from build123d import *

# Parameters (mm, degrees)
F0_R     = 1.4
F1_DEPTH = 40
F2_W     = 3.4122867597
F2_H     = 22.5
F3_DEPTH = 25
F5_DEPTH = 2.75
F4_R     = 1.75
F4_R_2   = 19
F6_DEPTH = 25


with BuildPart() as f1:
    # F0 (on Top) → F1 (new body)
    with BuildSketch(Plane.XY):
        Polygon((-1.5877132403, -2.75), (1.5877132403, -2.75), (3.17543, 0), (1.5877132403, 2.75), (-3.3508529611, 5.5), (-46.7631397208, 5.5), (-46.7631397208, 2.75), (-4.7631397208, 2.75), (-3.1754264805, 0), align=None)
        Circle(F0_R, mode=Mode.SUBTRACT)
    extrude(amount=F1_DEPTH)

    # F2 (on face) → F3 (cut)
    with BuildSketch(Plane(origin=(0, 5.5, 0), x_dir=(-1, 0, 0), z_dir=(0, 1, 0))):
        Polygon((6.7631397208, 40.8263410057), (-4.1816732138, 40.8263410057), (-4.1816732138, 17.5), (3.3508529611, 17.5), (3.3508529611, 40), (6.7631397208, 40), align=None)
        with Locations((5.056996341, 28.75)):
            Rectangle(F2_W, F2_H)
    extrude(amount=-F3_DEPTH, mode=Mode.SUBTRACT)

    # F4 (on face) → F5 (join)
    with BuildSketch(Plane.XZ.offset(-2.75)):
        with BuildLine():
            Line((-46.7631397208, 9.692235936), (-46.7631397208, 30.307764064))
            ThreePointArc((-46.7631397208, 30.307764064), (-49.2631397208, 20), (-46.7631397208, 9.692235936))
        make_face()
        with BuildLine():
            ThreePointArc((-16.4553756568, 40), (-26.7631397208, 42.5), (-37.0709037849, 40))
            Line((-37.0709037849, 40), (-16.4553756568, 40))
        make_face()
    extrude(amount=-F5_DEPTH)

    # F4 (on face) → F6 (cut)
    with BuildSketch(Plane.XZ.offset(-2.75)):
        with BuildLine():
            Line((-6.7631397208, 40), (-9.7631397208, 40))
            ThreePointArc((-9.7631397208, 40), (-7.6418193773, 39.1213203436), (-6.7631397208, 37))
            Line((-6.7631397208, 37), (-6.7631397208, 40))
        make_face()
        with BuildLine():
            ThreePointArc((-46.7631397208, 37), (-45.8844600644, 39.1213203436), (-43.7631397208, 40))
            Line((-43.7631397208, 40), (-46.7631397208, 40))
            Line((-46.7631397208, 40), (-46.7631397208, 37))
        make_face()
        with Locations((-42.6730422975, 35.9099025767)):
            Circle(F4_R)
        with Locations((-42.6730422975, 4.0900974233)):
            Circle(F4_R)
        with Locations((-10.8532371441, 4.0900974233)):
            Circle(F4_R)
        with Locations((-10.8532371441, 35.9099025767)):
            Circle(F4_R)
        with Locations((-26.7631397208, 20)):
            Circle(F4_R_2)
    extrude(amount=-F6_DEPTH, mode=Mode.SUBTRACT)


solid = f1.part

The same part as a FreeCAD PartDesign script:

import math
import FreeCAD as App
import Part
import Sketcher
Q = App.Units.Quantity

doc = App.newDocument("Part")
body = doc.addObject("PartDesign::Body", "Body")

sketch1 = body.newObject("Sketcher::SketchObject", "Sketch")
sketch1.AttachmentSupport = (doc.getObject("XY_Plane"), [""])
sketch1.MapMode = "FlatFace"
sketch1.addGeometry([
    Part.LineSegment(App.Vector(-1.6, -2.8, 0), App.Vector(1.6, -2.8, 0)),
    Part.LineSegment(App.Vector(1.6, -2.8, 0), App.Vector(3.2, 0, 0)),
    Part.LineSegment(App.Vector(3.2, 0, 0), App.Vector(1.6, 2.8, 0)),
    Part.LineSegment(App.Vector(1.6, 2.8, 0), App.Vector(-3.4, 5.5, 0)),
    Part.LineSegment(App.Vector(-3.4, 5.5, 0), App.Vector(-46.8, 5.5, 0)),
    Part.LineSegment(App.Vector(-46.8, 5.5, 0), App.Vector(-46.8, 2.8, 0)),
    Part.LineSegment(App.Vector(-46.8, 2.8, 0), App.Vector(-4.8, 2.8, 0)),
    Part.LineSegment(App.Vector(-4.8, 2.8, 0), App.Vector(-3.2, 0, 0)),
    Part.LineSegment(App.Vector(-3.2, 0, 0), App.Vector(-1.6, -2.8, 0)),
    Part.Circle(App.Vector(0, 0, 0), App.Vector(0, 0, 1), 1.4),
], False)
sketch1.addConstraint([
    Sketcher.Constraint("Coincident", 0, 2, 1, 1),
    Sketcher.Constraint("Coincident", 1, 2, 2, 1),
    Sketcher.Constraint("Coincident", 2, 2, 3, 1),
    Sketcher.Constraint("Coincident", 3, 2, 4, 1),
    Sketcher.Constraint("Coincident", 4, 2, 5, 1),
    Sketcher.Constraint("Coincident", 5, 2, 6, 1),
    Sketcher.Constraint("Coincident", 6, 2, 7, 1),
    Sketcher.Constraint("Coincident", 7, 2, 8, 1),
    Sketcher.Constraint("Coincident", 8, 2, 0, 1),
    Sketcher.Constraint("Horizontal", 0),
    Sketcher.Constraint("Horizontal", 4),
    Sketcher.Constraint("Vertical", 5),
    Sketcher.Constraint("Horizontal", 6),
    Sketcher.Constraint("Coincident", 9, 3, -1, 1),
    Sketcher.Constraint("Symmetric", 1, 2, 7, 2, -1, 1),
    Sketcher.Constraint("Symmetric", 2, 2, 8, 2, -1, 1),
    Sketcher.Constraint("PointOnObject", 1, 2, -1),
    Sketcher.Constraint("Parallel", 2, 7),
    Sketcher.Constraint("Horizontal", 2, 2, 5, 2),
    Sketcher.Constraint("Vertical", 0, 2, 2, 2),
    Sketcher.Constraint("Diameter", 9, Q("2.8 mm")),
    Sketcher.Constraint("DistanceX", 6, 1, 6, 2, Q("42 mm")),
    Sketcher.Constraint("Angle", 7, Q("-60 deg")),
    Sketcher.Constraint("DistanceY", 5, 2, 5, 1, Q("2.75 mm")),
    Sketcher.Constraint("DistanceY", -1, 1, 3, 2, Q("5.5 mm")),
    Sketcher.Constraint("DistanceX", 0, 1, 0, 2, Q("3.175426 mm")),
    Sketcher.Constraint("DistanceX", 4, 2, 4, 1, Q("43.412287 mm")),
])
pad1 = body.newObject("PartDesign::Pad", "Pad")
pad1.Profile = sketch1
pad1.Length = 40

sketch2 = body.newObject("Sketcher::SketchObject", "Sketch001")
sketch2.AttachmentSupport = (doc.getObject("XZ_Plane"), [""])
sketch2.MapMode = "FlatFace"
sketch2.AttachmentOffset = App.Placement(App.Vector(0, 0, -5.5), App.Rotation())
sketch2.addGeometry([
    Part.LineSegment(App.Vector(-6.8, 40.8, 0), App.Vector(4.2, 40.8, 0)),
    Part.LineSegment(App.Vector(4.2, 40.8, 0), App.Vector(4.2, 17.5, 0)),
    Part.LineSegment(App.Vector(4.2, 17.5, 0), App.Vector(-6.8, 17.5, 0)),
    Part.LineSegment(App.Vector(-6.8, 17.5, 0), App.Vector(-6.8, 40, 0)),
    Part.LineSegment(App.Vector(-6.8, 40, 0), App.Vector(-6.8, 40.8, 0)),
], False)
sketch2.addConstraint([
    Sketcher.Constraint("Coincident", 0, 2, 1, 1),
    Sketcher.Constraint("Coincident", 1, 2, 2, 1),
    Sketcher.Constraint("Coincident", 2, 2, 3, 1),
    Sketcher.Constraint("Coincident", 3, 2, 4, 1),
    Sketcher.Constraint("Coincident", 4, 2, 0, 1),
    Sketcher.Constraint("Horizontal", 0),
    Sketcher.Constraint("Vertical", 1),
    Sketcher.Constraint("Horizontal", 2),
    Sketcher.Constraint("Vertical", 3),
    Sketcher.Constraint("Vertical", 4),
    Sketcher.Constraint("DistanceY", 3, 1, 3, 2, Q("22.5 mm")),
    Sketcher.Constraint("DistanceY", -1, 1, 3, 2, Q("40 mm")),
    Sketcher.Constraint("DistanceY", 1, 2, 1, 1, Q("23.326341 mm")),
    Sketcher.Constraint("DistanceX", 0, 1, 0, 2, Q("10.944813 mm")),
    Sketcher.Constraint("DistanceX", 2, 2, -1, 1, Q("6.76314 mm")),
])
pocket1 = body.newObject("PartDesign::Pocket", "Pocket")
pocket1.Profile = sketch2
pocket1.Length = 25
pocket1.Reversed = True

sketch3 = body.newObject("Sketcher::SketchObject", "Sketch002")
sketch3.AttachmentSupport = (doc.getObject("XZ_Plane"), [""])
sketch3.MapMode = "FlatFace"
sketch3.AttachmentOffset = App.Placement(App.Vector(0, 0, -2.75), App.Rotation())
sketch3.addGeometry([
    Part.LineSegment(App.Vector(-47, 10, 0), App.Vector(-47, 30, 0)),
    Part.ArcOfCircle(Part.Circle(App.Vector(-27, 20, 0), App.Vector(0, 0, 1), 22), math.radians(153), math.radians(207)),
    Part.ArcOfCircle(Part.Circle(App.Vector(-27, 20, 0), App.Vector(0, 0, 1), 22), math.radians(63), math.radians(117)),
    Part.LineSegment(App.Vector(-37, 40, 0), App.Vector(-16, 40, 0)),
], False)
sketch3.addConstraint([
    Sketcher.Constraint("Coincident", 0, 1, 1, 2),
    Sketcher.Constraint("Coincident", 1, 1, 0, 2),
    Sketcher.Constraint("Coincident", 2, 1, 3, 2),
    Sketcher.Constraint("Coincident", 3, 1, 2, 2),
    Sketcher.Constraint("Vertical", 0),
    Sketcher.Constraint("Horizontal", 3),
    Sketcher.Constraint("Coincident", 2, 3, 1, 3),
    Sketcher.Constraint("Equal", 1, 2),
    Sketcher.Constraint("Equal", 3, 0),
    Sketcher.Constraint("Radius", 1, Q("22.5 mm")),
    Sketcher.Constraint("DistanceY", -1, 1, 1, 3, Q("20 mm")),
    Sketcher.Constraint("DistanceY", -1, 1, 2, 1, Q("40 mm")),
    Sketcher.Constraint("DistanceX", 1, 3, -1, 1, Q("26.76314 mm")),
])
pad2 = body.newObject("PartDesign::Pad", "Pad001")
pad2.Profile = sketch3
pad2.Length = 2.75
pad2.Reversed = True

sketch4 = body.newObject("Sketcher::SketchObject", "Sketch003")
sketch4.AttachmentSupport = (doc.getObject("XZ_Plane"), [""])
sketch4.MapMode = "FlatFace"
sketch4.AttachmentOffset = App.Placement(App.Vector(0, 0, -2.75), App.Rotation())
sketch4.addGeometry([
    Part.LineSegment(App.Vector(-6.8, 40, 0), App.Vector(-9.8, 40, 0)),
    Part.ArcOfCircle(Part.Circle(App.Vector(-9.8, 37, 0), App.Vector(0, 0, 1), 3), math.radians(0), math.radians(90)),
    Part.LineSegment(App.Vector(-6.8, 37, 0), App.Vector(-6.8, 40, 0)),
    Part.ArcOfCircle(Part.Circle(App.Vector(-43.8, 37, 0), App.Vector(0, 0, 1), 3), math.radians(90), math.radians(180)),
    Part.LineSegment(App.Vector(-43.8, 40, 0), App.Vector(-46.8, 40, 0)),
    Part.LineSegment(App.Vector(-46.8, 40, 0), App.Vector(-46.8, 37, 0)),
    Part.Circle(App.Vector(-42.7, 35.9, 0), App.Vector(0, 0, 1), 1.8),
    Part.Circle(App.Vector(-42.7, 4.1, 0), App.Vector(0, 0, 1), 1.8),
    Part.Circle(App.Vector(-10.9, 4.1, 0), App.Vector(0, 0, 1), 1.8),
    Part.Circle(App.Vector(-10.9, 35.9, 0), App.Vector(0, 0, 1), 1.8),
    Part.Circle(App.Vector(-26.8, 20, 0), App.Vector(0, 0, 1), 19),
], False)
sketch4.addConstraint([
    Sketcher.Constraint("Tangent", 0, 2, 1, 2),
    Sketcher.Constraint("Tangent", 1, 1, 2, 1),
    Sketcher.Constraint("Coincident", 2, 2, 0, 1),
    Sketcher.Constraint("Tangent", 3, 1, 4, 1),
    Sketcher.Constraint("Coincident", 4, 2, 5, 1),
    Sketcher.Constraint("Tangent", 5, 2, 3, 2),
    Sketcher.Constraint("Horizontal", 0),
    Sketcher.Constraint("Vertical", 2),
    Sketcher.Constraint("Horizontal", 4),
    Sketcher.Constraint("Vertical", 5),
    Sketcher.Constraint("Equal", 1, 3),
    Sketcher.Constraint("Equal", 6, 7),
    Sketcher.Constraint("Equal", 7, 8),
    Sketcher.Constraint("Equal", 8, 9),
    Sketcher.Constraint("Horizontal", 1, 3, 3, 3),
    Sketcher.Constraint("Horizontal", 7, 3, 8, 3),
    Sketcher.Constraint("Horizontal", 6, 3, 9, 3),
    Sketcher.Constraint("Vertical", 6, 3, 7, 3),
    Sketcher.Constraint("Vertical", 8, 3, 9, 3),
    Sketcher.Constraint("Diameter", 10, Q("38 mm")),
    Sketcher.Constraint("Radius", 1, Q("3 mm")),
    Sketcher.Constraint("Diameter", 6, Q("3.5 mm")),
    Sketcher.Constraint("DistanceY", -1, 1, 1, 3, Q("37 mm")),
    Sketcher.Constraint("DistanceY", -1, 1, 10, 3, Q("20 mm")),
    Sketcher.Constraint("DistanceX", 3, 3, 1, 3, Q("34 mm")),
    Sketcher.Constraint("DistanceX", 10, 3, 1, 3, Q("17 mm")),
    Sketcher.Constraint("DistanceX", 1, 3, -1, 1, Q("9.76314 mm")),
    Sketcher.Constraint("DistanceX", 6, 3, -1, 1, Q("42.673042 mm")),
    Sketcher.Constraint("DistanceY", -1, 1, 6, 3, Q("35.909903 mm")),
    Sketcher.Constraint("DistanceY", -1, 1, 7, 3, Q("4.090097 mm")),
    Sketcher.Constraint("DistanceX", 8, 3, -1, 1, Q("10.853237 mm")),
])
pocket2 = body.newObject("PartDesign::Pocket", "Pocket001")
pocket2.Profile = sketch4
pocket2.Length = 25

doc.recompute()
